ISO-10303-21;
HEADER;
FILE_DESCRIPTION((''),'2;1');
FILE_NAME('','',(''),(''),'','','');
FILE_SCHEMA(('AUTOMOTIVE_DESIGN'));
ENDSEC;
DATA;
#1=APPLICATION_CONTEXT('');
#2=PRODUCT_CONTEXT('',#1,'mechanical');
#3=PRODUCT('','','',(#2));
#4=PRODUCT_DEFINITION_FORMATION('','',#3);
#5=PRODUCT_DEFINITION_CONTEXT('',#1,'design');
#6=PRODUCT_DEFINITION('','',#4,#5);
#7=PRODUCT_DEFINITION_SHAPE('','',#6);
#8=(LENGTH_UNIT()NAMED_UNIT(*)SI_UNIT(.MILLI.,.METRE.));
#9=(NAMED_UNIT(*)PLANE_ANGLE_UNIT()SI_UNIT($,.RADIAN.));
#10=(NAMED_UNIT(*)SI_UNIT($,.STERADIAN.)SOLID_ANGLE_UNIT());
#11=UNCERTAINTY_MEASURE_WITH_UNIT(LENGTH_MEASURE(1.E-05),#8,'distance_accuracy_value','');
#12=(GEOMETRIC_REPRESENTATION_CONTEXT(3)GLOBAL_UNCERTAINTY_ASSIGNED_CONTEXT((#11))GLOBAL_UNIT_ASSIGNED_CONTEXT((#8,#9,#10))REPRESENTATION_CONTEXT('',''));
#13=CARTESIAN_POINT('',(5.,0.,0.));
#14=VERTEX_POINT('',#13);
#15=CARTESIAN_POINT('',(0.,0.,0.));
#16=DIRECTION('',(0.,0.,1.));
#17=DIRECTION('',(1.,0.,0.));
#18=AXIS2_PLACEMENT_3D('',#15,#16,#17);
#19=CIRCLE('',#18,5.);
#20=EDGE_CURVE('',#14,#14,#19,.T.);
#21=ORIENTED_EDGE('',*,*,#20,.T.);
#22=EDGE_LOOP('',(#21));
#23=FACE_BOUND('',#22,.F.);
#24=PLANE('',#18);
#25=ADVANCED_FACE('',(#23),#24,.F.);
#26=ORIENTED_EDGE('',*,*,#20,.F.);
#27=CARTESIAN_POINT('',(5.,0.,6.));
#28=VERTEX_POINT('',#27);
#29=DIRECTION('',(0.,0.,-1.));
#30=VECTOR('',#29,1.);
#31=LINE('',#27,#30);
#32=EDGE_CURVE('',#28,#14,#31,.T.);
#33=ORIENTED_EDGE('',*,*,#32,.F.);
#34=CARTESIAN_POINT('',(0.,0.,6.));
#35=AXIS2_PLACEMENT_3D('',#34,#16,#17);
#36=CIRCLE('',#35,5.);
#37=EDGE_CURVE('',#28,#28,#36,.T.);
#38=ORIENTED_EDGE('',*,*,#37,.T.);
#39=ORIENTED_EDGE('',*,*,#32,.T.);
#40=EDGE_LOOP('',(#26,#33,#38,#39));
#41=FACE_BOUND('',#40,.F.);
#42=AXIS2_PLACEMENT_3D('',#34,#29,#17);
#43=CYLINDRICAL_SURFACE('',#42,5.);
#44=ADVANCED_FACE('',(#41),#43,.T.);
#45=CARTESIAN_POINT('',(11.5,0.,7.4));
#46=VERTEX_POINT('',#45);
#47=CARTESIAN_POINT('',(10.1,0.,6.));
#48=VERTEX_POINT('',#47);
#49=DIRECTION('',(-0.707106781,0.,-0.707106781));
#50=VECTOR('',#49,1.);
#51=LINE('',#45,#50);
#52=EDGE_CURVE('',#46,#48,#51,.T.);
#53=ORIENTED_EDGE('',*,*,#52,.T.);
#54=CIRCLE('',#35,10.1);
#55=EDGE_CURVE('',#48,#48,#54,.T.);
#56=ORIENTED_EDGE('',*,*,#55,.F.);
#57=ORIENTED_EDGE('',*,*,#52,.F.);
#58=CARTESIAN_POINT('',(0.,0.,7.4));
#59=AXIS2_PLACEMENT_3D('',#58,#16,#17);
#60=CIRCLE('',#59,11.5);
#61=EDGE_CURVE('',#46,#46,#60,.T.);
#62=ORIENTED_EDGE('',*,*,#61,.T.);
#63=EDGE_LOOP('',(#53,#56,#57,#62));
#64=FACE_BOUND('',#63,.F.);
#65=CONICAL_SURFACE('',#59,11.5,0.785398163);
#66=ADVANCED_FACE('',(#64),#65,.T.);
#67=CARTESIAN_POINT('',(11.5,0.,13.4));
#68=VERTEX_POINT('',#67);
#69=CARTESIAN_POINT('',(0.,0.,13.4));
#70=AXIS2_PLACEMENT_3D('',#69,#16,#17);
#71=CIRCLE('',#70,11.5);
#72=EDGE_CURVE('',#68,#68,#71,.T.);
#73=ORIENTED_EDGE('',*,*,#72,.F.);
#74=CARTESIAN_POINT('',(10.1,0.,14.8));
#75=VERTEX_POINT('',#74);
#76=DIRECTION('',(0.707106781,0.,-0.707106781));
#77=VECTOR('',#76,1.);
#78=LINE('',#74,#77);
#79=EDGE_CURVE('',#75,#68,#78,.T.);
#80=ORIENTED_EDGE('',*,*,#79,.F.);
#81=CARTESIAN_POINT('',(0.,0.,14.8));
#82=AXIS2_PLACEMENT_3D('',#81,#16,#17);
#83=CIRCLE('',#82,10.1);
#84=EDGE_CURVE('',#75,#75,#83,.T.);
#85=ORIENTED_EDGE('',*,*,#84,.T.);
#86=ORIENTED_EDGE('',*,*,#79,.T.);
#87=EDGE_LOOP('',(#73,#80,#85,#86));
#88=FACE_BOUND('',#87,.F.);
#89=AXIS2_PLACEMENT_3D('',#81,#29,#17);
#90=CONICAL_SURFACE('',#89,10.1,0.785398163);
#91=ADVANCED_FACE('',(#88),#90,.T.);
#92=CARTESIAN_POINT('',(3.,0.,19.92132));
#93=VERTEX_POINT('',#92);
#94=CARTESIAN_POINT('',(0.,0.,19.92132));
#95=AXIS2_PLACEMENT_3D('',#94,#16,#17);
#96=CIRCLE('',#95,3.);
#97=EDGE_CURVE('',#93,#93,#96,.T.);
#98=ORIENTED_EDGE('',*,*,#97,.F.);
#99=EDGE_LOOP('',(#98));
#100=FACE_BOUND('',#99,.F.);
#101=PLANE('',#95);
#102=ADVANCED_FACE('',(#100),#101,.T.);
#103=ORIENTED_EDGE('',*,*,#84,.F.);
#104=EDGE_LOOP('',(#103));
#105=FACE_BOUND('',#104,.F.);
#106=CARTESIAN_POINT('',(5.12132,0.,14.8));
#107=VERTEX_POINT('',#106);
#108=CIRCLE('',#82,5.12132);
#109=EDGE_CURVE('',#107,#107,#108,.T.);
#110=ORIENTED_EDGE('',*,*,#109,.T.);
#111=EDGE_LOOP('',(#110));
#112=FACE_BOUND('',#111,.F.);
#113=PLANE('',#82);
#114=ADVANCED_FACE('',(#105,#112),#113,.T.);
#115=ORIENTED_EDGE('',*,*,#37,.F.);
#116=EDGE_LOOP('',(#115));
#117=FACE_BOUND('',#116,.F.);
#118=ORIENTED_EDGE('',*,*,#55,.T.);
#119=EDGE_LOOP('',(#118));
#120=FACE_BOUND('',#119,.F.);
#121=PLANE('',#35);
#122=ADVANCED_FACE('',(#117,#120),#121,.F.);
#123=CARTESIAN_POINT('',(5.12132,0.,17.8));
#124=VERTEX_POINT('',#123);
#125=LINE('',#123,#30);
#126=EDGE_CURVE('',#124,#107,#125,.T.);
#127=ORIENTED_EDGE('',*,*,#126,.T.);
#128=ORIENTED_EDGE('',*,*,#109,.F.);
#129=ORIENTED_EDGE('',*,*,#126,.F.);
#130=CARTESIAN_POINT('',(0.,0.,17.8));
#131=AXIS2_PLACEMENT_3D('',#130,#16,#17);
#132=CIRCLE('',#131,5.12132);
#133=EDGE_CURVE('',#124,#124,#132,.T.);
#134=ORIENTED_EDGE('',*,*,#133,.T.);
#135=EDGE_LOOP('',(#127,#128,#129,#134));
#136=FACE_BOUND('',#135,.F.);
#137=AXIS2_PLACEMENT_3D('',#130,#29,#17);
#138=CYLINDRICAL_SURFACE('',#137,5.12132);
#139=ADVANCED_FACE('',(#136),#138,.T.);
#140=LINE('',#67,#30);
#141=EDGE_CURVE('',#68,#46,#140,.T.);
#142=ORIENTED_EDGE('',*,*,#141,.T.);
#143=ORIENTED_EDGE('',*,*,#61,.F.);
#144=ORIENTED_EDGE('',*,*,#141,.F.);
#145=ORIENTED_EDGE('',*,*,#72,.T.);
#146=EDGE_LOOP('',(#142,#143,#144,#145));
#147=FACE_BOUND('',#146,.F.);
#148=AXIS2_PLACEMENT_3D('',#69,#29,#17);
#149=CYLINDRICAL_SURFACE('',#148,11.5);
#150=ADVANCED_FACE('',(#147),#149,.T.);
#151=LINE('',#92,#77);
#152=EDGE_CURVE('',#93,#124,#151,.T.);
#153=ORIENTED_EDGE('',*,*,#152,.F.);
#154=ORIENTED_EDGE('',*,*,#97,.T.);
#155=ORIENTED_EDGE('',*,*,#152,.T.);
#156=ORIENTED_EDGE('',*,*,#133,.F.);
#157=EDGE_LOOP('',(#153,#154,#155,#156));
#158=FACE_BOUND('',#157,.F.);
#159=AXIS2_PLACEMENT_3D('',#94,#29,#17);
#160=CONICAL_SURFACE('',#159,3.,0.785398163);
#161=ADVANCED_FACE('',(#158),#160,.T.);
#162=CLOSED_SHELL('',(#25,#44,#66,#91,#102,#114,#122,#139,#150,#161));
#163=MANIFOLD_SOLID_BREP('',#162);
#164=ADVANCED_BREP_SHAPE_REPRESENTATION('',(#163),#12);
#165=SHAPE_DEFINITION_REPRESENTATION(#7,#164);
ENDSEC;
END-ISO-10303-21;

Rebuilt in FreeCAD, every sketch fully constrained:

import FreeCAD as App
import Part
import Sketcher
Q = App.Units.Quantity

doc = App.newDocument("Part")
body = doc.addObject("PartDesign::Body", "Body")

# Sketch on XZ plane
sketch1 = doc.addObject("Sketcher::SketchObject", "Sketch")
body.addObject(sketch1)
sketch1.AttachmentSupport = (doc.XZ_Plane, [""])
sketch1.MapMode = "FlatFace"
sketch1.addGeometry([
    Part.LineSegment(App.Vector(3, 19.9, 0), App.Vector(0, 19.9, 0)),  # 0
    Part.LineSegment(App.Vector(0, 19.9, 0), App.Vector(0, 0, 0)),  # 1
    Part.LineSegment(App.Vector(0, 0, 0), App.Vector(5, 0, 0)),  # 2
    Part.LineSegment(App.Vector(5, 0, 0), App.Vector(5, 6, 0)),  # 3
    Part.LineSegment(App.Vector(5, 6, 0), App.Vector(10.1, 6, 0)),  # 4
    Part.LineSegment(App.Vector(10.1, 6, 0), App.Vector(11.5, 7.4, 0)),  # 5
    Part.LineSegment(App.Vector(11.5, 7.4, 0), App.Vector(11.5, 13.4, 0)),  # 6
    Part.LineSegment(App.Vector(11.5, 13.4, 0), App.Vector(10.1, 14.8, 0)),  # 7
    Part.LineSegment(App.Vector(10.1, 14.8, 0), App.Vector(5.1, 14.8, 0)),  # 8
    Part.LineSegment(App.Vector(5.1, 14.8, 0), App.Vector(5.1, 17.8, 0)),  # 9
    Part.LineSegment(App.Vector(5.1, 17.8, 0), App.Vector(3, 19.9, 0)),  # 10
], False)
sketch1.addConstraint([
    Sketcher.Constraint("Coincident", 0, 2, 1, 1),
    Sketcher.Constraint("Coincident", 1, 2, 2, 1),
    Sketcher.Constraint("Coincident", 2, 2, 3, 1),
    Sketcher.Constraint("Coincident", 3, 2, 4, 1),
    Sketcher.Constraint("Coincident", 4, 2, 5, 1),
    Sketcher.Constraint("Coincident", 5, 2, 6, 1),
    Sketcher.Constraint("Coincident", 6, 2, 7, 1),
    Sketcher.Constraint("Coincident", 7, 2, 8, 1),
    Sketcher.Constraint("Coincident", 8, 2, 9, 1),
    Sketcher.Constraint("Coincident", 9, 2, 10, 1),
    Sketcher.Constraint("Coincident", 10, 2, 0, 1),
    Sketcher.Constraint("Horizontal", 0),
    Sketcher.Constraint("Vertical", 1),
    Sketcher.Constraint("Horizontal", 2),
    Sketcher.Constraint("Vertical", 3),
    Sketcher.Constraint("Horizontal", 4),
    Sketcher.Constraint("Vertical", 6),
    Sketcher.Constraint("Horizontal", 8),
    Sketcher.Constraint("Vertical", 9),
    Sketcher.Constraint("Coincident", 1, 2, -1, 1),
    Sketcher.Constraint("Perpendicular", 5, 7),
    Sketcher.Constraint("Parallel", 7, 10),
    Sketcher.Constraint("Vertical", 4, 2, 7, 2),
    Sketcher.Constraint("Equal", 3, 6),
    Sketcher.Constraint("Equal", 0, 9),
    Sketcher.Constraint("Equal", 5, 7),
    Sketcher.Constraint("DistanceX", 0, 2, 0, 1, Q("3 mm")),
    Sketcher.Constraint("DistanceX", 2, 1, 2, 2, Q("5 mm")),
    Sketcher.Constraint("DistanceY", 3, 1, 3, 2, Q("6 mm")),
    Sketcher.Constraint("Distance", 10, Q("3 mm")),
    Sketcher.Constraint("DistanceX", 4, 1, 4, 2, Q("5.1 mm")),
    Sketcher.Constraint("DistanceX", -1, 1, 5, 2, Q("11.5 mm")),
])
revolution = doc.addObject("PartDesign::Revolution", "Revolution")
body.addObject(revolution)
revolution.Profile = sketch1
revolution.ReferenceAxis = (sketch1, ["V_Axis"])
revolution.Angle = 360

doc.recompute()
